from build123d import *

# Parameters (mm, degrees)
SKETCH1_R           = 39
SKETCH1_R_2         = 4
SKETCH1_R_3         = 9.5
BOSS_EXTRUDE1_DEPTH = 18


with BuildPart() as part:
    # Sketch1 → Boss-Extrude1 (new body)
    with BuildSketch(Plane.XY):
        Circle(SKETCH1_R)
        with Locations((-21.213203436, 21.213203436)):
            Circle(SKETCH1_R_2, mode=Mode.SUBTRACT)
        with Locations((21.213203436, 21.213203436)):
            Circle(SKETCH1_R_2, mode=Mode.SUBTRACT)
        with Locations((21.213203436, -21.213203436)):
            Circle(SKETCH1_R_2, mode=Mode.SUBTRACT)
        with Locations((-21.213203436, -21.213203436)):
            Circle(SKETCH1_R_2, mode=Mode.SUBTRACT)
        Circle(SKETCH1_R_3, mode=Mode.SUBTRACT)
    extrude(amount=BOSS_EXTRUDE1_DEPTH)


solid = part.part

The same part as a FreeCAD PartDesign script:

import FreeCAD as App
import Part
import Sketcher

doc = App.newDocument("Part")
params = doc.addObject("Spreadsheet::Sheet", "Params")
for row, (alias, value) in enumerate([
    ("sketch1_diameter", "78 mm"),
    ("sketch1_diameter2", "8 mm"),
    ("sketch1_diameter3", "19 mm"),
    ("pad1_length", "18 mm"),
], start=1):
    params.set(f"A{row}", alias)
    params.set(f"B{row}", "=" + value)
    params.setAlias(f"B{row}", alias)

body = doc.addObject("PartDesign::Body", "Body")

# Sketch on XY plane
sketch1 = body.newObject("Sketcher::SketchObject", "Sketch")
sketch1.AttachmentSupport = (doc.getObject("XY_Plane"), [""])
sketch1.MapMode = "FlatFace"
sketch1.addGeometry([
    Part.Circle(App.Vector(0, 0, 0), App.Vector(0, 0, 1), 39),  # 0
    Part.Circle(App.Vector(-21.2, -21.2, 0), App.Vector(0, 0, 1), 4),  # 1
    Part.Circle(App.Vector(21.2, -21.2, 0), App.Vector(0, 0, 1), 4),  # 2
    Part.Circle(App.Vector(-21.2, 21.2, 0), App.Vector(0, 0, 1), 4),  # 3
    Part.Circle(App.Vector(0, 0, 0), App.Vector(0, 0, 1), 9.5),  # 4
    Part.Circle(App.Vector(21.2, 21.2, 0), App.Vector(0, 0, 1), 4),  # 5
], False)
sketch1.addConstraint([
    Sketcher.Constraint("Coincident", 0, 3, -1, 1),
    Sketcher.Constraint("Coincident", 4, 3, -1, 1),
    Sketcher.Constraint("Equal", 1, 2),
    Sketcher.Constraint("Equal", 2, 3),
    Sketcher.Constraint("Equal", 3, 5),
    Sketcher.Constraint("Symmetric", 2, 3, 3, 3, -1, 1),
    Sketcher.Constraint("Symmetric", 1, 3, 5, 3, -1, 1),
    Sketcher.Constraint("Symmetric", 1, 3, 2, 3, -2),
    Sketcher.Constraint("Diameter", 0, 78.0),
    Sketcher.Constraint("Diameter", 1, 8.0),
    Sketcher.Constraint("Diameter", 4, 19.0),
    Sketcher.Constraint("DistanceX", 1, 3, -1, 1, 21.213203),
    Sketcher.Constraint("DistanceY", 1, 3, -1, 1, 21.213203),
])
sketch1.setExpression("Constraints[8]", "Params.sketch1_diameter")
sketch1.setExpression("Constraints[9]", "Params.sketch1_diameter2")
sketch1.setExpression("Constraints[10]", "Params.sketch1_diameter3")
pad1 = body.newObject("PartDesign::Pad", "Pad")
pad1.Profile = sketch1
pad1.setExpression("Length", "Params.pad1_length")

doc.recompute()
